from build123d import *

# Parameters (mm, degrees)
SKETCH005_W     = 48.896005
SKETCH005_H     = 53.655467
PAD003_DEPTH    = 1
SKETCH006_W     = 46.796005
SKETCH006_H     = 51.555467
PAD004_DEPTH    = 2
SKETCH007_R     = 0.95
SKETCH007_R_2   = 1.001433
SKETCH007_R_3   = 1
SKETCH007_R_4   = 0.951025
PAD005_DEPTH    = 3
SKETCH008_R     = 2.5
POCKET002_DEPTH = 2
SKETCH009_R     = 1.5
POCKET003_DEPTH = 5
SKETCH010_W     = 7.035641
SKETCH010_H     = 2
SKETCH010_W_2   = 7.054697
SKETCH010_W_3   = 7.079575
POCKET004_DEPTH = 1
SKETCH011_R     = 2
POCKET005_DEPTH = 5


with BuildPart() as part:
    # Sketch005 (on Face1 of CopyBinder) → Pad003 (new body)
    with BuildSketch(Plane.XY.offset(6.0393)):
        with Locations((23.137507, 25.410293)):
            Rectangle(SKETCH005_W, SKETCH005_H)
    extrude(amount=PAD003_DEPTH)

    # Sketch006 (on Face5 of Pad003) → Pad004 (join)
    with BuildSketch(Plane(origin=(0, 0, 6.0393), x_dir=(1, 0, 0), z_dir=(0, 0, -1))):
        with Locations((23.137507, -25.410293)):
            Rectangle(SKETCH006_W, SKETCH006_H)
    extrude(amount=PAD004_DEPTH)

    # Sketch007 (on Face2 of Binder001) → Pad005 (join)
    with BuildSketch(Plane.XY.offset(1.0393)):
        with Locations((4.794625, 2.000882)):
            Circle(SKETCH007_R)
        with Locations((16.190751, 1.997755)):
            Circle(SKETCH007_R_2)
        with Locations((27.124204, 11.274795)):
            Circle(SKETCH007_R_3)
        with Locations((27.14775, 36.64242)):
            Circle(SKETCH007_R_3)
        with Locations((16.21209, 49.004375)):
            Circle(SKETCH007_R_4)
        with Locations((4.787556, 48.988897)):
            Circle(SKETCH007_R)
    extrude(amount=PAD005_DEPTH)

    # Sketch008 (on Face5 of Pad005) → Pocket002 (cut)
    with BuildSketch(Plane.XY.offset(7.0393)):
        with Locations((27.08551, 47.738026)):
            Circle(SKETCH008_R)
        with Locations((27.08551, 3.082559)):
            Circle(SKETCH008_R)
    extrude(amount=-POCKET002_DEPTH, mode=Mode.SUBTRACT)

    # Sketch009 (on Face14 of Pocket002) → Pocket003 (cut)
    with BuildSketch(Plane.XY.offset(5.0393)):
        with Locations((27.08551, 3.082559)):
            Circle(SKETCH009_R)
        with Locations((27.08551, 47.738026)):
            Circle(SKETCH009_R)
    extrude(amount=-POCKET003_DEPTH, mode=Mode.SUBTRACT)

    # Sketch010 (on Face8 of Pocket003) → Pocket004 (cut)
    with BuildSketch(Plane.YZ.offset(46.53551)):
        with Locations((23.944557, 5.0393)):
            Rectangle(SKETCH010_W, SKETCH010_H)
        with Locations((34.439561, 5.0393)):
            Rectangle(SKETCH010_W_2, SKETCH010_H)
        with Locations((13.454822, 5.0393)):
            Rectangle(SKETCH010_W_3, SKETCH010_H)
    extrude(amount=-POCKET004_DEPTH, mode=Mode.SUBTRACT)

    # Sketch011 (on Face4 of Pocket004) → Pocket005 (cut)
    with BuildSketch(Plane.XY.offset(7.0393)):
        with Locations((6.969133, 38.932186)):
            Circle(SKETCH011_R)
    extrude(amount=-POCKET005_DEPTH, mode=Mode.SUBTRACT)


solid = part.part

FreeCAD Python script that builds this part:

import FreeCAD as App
import Part
import Sketcher

doc = App.newDocument("Part")
body = doc.addObject("PartDesign::Body", "Body")

sketch1 = doc.addObject("Sketcher::SketchObject", "Sketch")
body.addObject(sketch1)
sketch1.AttachmentSupport = (doc.XY_Plane, [""])
sketch1.MapMode = "FlatFace"
sketch1.AttachmentOffset = App.Placement(App.Vector(0, 0, 6.0393), App.Rotation())
sketch1.addGeometry([
    Part.LineSegment(App.Vector(-1, 52, 0), App.Vector(-1, -1, 0)),
    Part.LineSegment(App.Vector(-1, -1, 0), App.Vector(48, -1, 0)),
    Part.LineSegment(App.Vector(48, -1, 0), App.Vector(48, 52, 0)),
    Part.LineSegment(App.Vector(48, 52, 0), App.Vector(-1, 52, 0)),
], False)
sketch1.addConstraint([
    Sketcher.Constraint("Coincident", 0, 2, 1, 1),
    Sketcher.Constraint("Coincident", 1, 2, 2, 1),
    Sketcher.Constraint("Coincident", 2, 2, 3, 1),
    Sketcher.Constraint("Coincident", 3, 2, 0, 1),
    Sketcher.Constraint("Vertical", 0),
    Sketcher.Constraint("Horizontal", 1),
    Sketcher.Constraint("Vertical", 2),
    Sketcher.Constraint("Horizontal", 3),
    Sketcher.Constraint("DistanceX", 1, 1, 1, 2, 48.896005),
    Sketcher.Constraint("DistanceY", 0, 2, 0, 1, 53.655467),
    Sketcher.Constraint("DistanceY", 0, 2, -1, 1, 1.417441),
    Sketcher.Constraint("DistanceX", -1, 1, 1, 2, 47.58551),
])
pad1 = doc.addObject("PartDesign::Pad", "Pad")
body.addObject(pad1)
pad1.Profile = sketch1
pad1.Length = 1

sketch2 = doc.addObject("Sketcher::SketchObject", "Sketch001")
body.addObject(sketch2)
sketch2.AttachmentSupport = (doc.XY_Plane, [""])
sketch2.MapMode = "FlatFace"
sketch2.AttachmentOffset = App.Placement(App.Vector(0, 0, 6.0393), App.Rotation())
sketch2.addGeometry([
    Part.LineSegment(App.Vector(0, 0, 0), App.Vector(0, 51, 0)),
    Part.LineSegment(App.Vector(0, 51, 0), App.Vector(47, 51, 0)),
    Part.LineSegment(App.Vector(47, 51, 0), App.Vector(47, 0, 0)),
    Part.LineSegment(App.Vector(47, 0, 0), App.Vector(0, 0, 0)),
], False)
sketch2.addConstraint([
    Sketcher.Constraint("Coincident", 0, 2, 1, 1),
    Sketcher.Constraint("Coincident", 1, 2, 2, 1),
    Sketcher.Constraint("Coincident", 2, 2, 3, 1),
    Sketcher.Constraint("Coincident", 3, 2, 0, 1),
    Sketcher.Constraint("Vertical", 0),
    Sketcher.Constraint("Horizontal", 1),
    Sketcher.Constraint("Vertical", 2),
    Sketcher.Constraint("Horizontal", 3),
    Sketcher.Constraint("DistanceX", 1, 1, 1, 2, 46.796005),
    Sketcher.Constraint("DistanceY", 0, 1, 0, 2, 51.555467),
    Sketcher.Constraint("DistanceX", -1, 1, 1, 2, 46.53551),
    Sketcher.Constraint("DistanceY", 2, 2, -1, 1, 0.367441),
])
pad2 = doc.addObject("PartDesign::Pad", "Pad001")
body.addObject(pad2)
pad2.Profile = sketch2
pad2.Length = 2
pad2.Reversed = True

sketch3 = doc.addObject("Sketcher::SketchObject", "Sketch002")
body.addObject(sketch3)
sketch3.AttachmentSupport = (doc.XY_Plane, [""])
sketch3.MapMode = "FlatFace"
sketch3.AttachmentOffset = App.Placement(App.Vector(0, 0, 1.0393), App.Rotation())
sketch3.addGeometry([
    Part.Circle(App.Vector(4.8, 2, 0), App.Vector(0, 0, 1), 0.9),
    Part.Circle(App.Vector(16.2, 2, 0), App.Vector(0, 0, 1), 1),
    Part.Circle(App.Vector(27.1, 11.3, 0), App.Vector(0, 0, 1), 1),
    Part.Circle(App.Vector(27.1, 36.6, 0), App.Vector(0, 0, 1), 1),
    Part.Circle(App.Vector(16.2, 49, 0), App.Vector(0, 0, 1), 1),
    Part.Circle(App.Vector(4.8, 49, 0), App.Vector(0, 0, 1), 0.9),
], False)
sketch3.addConstraint([
    Sketcher.Constraint("Equal", 2, 3),
    Sketcher.Constraint("Equal", 0, 5),
    Sketcher.Constraint("Diameter", 2, 2.0),
    Sketcher.Constraint("Diameter", 0, 1.9),
    Sketcher.Constraint("Diameter", 4, 1.90205),
    Sketcher.Constraint("Diameter", 1, 2.002866),
    Sketcher.Constraint("DistanceX", 1, 3, 3, 3, 10.956999),
    Sketcher.Constraint("DistanceY", -1, 1, 0, 3, 2.000882),
    Sketcher.Constraint("DistanceX", -1, 1, 1, 3, 16.190751),
    Sketcher.Constraint("DistanceY", -1, 1, 3, 3, 36.64242),
    Sketcher.Constraint("DistanceX", -1, 1, 4, 3, 16.21209),
    Sketcher.Constraint("DistanceY", 1, 3, 2, 3, 9.27704),
    Sketcher.Constraint("DistanceX", 0, 3, 2, 3, 22.329579),
    Sketcher.Constraint("DistanceY", 2, 3, 4, 3, 37.72958),
    Sketcher.Constraint("DistanceY", 5, 3, 4, 3, 0.015478),
    Sketcher.Constraint("DistanceX", 5, 3, 0, 3, 0.007069),
    Sketcher.Constraint("DistanceX", -1, 1, 0, 3, 4.794625),
    Sketcher.Constraint("DistanceY", -1, 1, 1, 3, 1.997755),
])
pad3 = doc.addObject("PartDesign::Pad", "Pad002")
body.addObject(pad3)
pad3.Profile = sketch3
pad3.Length = 3

sketch4 = doc.addObject("Sketcher::SketchObject", "Sketch003")
body.addObject(sketch4)
sketch4.AttachmentSupport = (doc.XY_Plane, [""])
sketch4.MapMode = "FlatFace"
sketch4.AttachmentOffset = App.Placement(App.Vector(0, 0, 7.0393), App.Rotation())
sketch4.addGeometry([
    Part.Circle(App.Vector(27.1, 47.7, 0), App.Vector(0, 0, 1), 2.5),
    Part.Circle(App.Vector(27.1, 3.1, 0), App.Vector(0, 0, 1), 2.5),
], False)
sketch4.addConstraint([
    Sketcher.Constraint("Equal", 0, 1),
    Sketcher.Constraint("Vertical", 0, 3, 1, 3),
    Sketcher.Constraint("Diameter", 0, 5.0),
    Sketcher.Constraint("DistanceX", -1, 1, 0, 3, 27.08551),
    Sketcher.Constraint("DistanceY", -1, 1, 1, 3, 3.082559),
    Sketcher.Constraint("DistanceY", -1, 1, 0, 3, 47.738026),
])
pocket1 = doc.addObject("PartDesign::Pocket", "Pocket")
body.addObject(pocket1)
pocket1.Profile = sketch4
pocket1.Length = 2

sketch5 = doc.addObject("Sketcher::SketchObject", "Sketch004")
body.addObject(sketch5)
sketch5.AttachmentSupport = (doc.XY_Plane, [""])
sketch5.MapMode = "FlatFace"
sketch5.AttachmentOffset = App.Placement(App.Vector(0, 0, 5.0393), App.Rotation())
sketch5.addGeometry([
    Part.Circle(App.Vector(27.1, 3.1, 0), App.Vector(0, 0, 1), 1.5),
    Part.Circle(App.Vector(27.1, 47.7, 0), App.Vector(0, 0, 1), 1.5),
], False)
sketch5.addConstraint([
    Sketcher.Constraint("Equal", 0, 1),
    Sketcher.Constraint("Vertical", 0, 3, 1, 3),
    Sketcher.Constraint("Diameter", 0, 3.0),
    Sketcher.Constraint("DistanceX", -1, 1, 0, 3, 27.08551),
    Sketcher.Constraint("DistanceY", -1, 1, 0, 3, 3.082559),
    Sketcher.Constraint("DistanceY", -1, 1, 1, 3, 47.738026),
])
pocket2 = doc.addObject("PartDesign::Pocket", "Pocket001")
body.addObject(pocket2)
pocket2.Profile = sketch5
pocket2.Length = 5

sketch6 = doc.addObject("Sketcher::SketchObject", "Sketch005")
body.addObject(sketch6)
sketch6.AttachmentSupport = (doc.YZ_Plane, [""])
sketch6.MapMode = "FlatFace"
sketch6.AttachmentOffset = App.Placement(App.Vector(0, 0, 46.53551), App.Rotation())
sketch6.addGeometry([
    Part.LineSegment(App.Vector(20.4, 6, 0), App.Vector(20.4, 4, 0)),
    Part.LineSegment(App.Vector(20.4, 4, 0), App.Vector(27.5, 4, 0)),
    Part.LineSegment(App.Vector(27.5, 4, 0), App.Vector(27.5, 6, 0)),
    Part.LineSegment(App.Vector(27.5, 6, 0), App.Vector(20.4, 6, 0)),
    Part.LineSegment(App.Vector(30.9, 6, 0), App.Vector(30.9, 4, 0)),
    Part.LineSegment(App.Vector(30.9, 4, 0), App.Vector(38, 4, 0)),
    Part.LineSegment(App.Vector(38, 4, 0), App.Vector(38, 6, 0)),
    Part.LineSegment(App.Vector(38, 6, 0), App.Vector(30.9, 6, 0)),
    Part.LineSegment(App.Vector(9.9, 6, 0), App.Vector(9.9, 4, 0)),
    Part.LineSegment(App.Vector(9.9, 4, 0), App.Vector(17, 4, 0)),
    Part.LineSegment(App.Vector(17, 4, 0), App.Vector(17, 6, 0)),
    Part.LineSegment(App.Vector(17, 6, 0), App.Vector(9.9, 6, 0)),
], False)
sketch6.addConstraint([
    Sketcher.Constraint("Coincident", 0, 2, 1, 1),
    Sketcher.Constraint("Coincident", 1, 2, 2, 1),
    Sketcher.Constraint("Coincident", 2, 2, 3, 1),
    Sketcher.Constraint("Coincident", 3, 2, 0, 1),
    Sketcher.Constraint("Coincident", 4, 2, 5, 1),
    Sketcher.Constraint("Coincident", 5, 2, 6, 1),
    Sketcher.Constraint("Coincident", 6, 2, 7, 1),
    Sketcher.Constraint("Coincident", 7, 2, 4, 1),
    Sketcher.Constraint("Coincident", 8, 2, 9, 1),
    Sketcher.Constraint("Coincident", 9, 2, 10, 1),
    Sketcher.Constraint("Coincident", 10, 2, 11, 1),
    Sketcher.Constraint("Coincident", 11, 2, 8, 1),
    Sketcher.Constraint("Vertical", 0),
    Sketcher.Constraint("Horizontal", 1),
    Sketcher.Constraint("Vertical", 2),
    Sketcher.Constraint("Horizontal", 3),
    Sketcher.Constraint("Vertical", 4),
    Sketcher.Constraint("Horizontal", 5),
    Sketcher.Constraint("Vertical", 6),
    Sketcher.Constraint("Horizontal", 7),
    Sketcher.Constraint("Vertical", 8),
    Sketcher.Constraint("Horizontal", 9),
    Sketcher.Constraint("Vertical", 10),
    Sketcher.Constraint("Horizontal", 11),
    Sketcher.Constraint("Horizontal", 1, 2, 4, 2),
    Sketcher.Constraint("Horizontal", 3, 2, 6, 2),
    Sketcher.Constraint("Horizontal", 5, 2, 8, 2),
    Sketcher.Constraint("Horizontal", 7, 2, 10, 2),
    Sketcher.Constraint("DistanceY", 0, 2, 0, 1, 2.0),
    Sketcher.Constraint("DistanceX", 1, 1, 1, 2, 7.035641),
    Sketcher.Constraint("DistanceY", -1, 1, 0, 2, 4.0393),
    Sketcher.Constraint("DistanceX", 5, 1, 5, 2, 7.054697),
    Sketcher.Constraint("DistanceX", 9, 1, 9, 2, 7.079575),
    Sketcher.Constraint("DistanceX", -1, 1, 5, 2, 37.966909),
    Sketcher.Constraint("DistanceX", -1, 1, 9, 2, 16.994609),
    Sketcher.Constraint("DistanceX", -1, 1, 0, 2, 20.426737),
])
pocket3 = doc.addObject("PartDesign::Pocket", "Pocket002")
body.addObject(pocket3)
pocket3.Profile = sketch6
pocket3.Length = 1

sketch7 = doc.addObject("Sketcher::SketchObject", "Sketch006")
body.addObject(sketch7)
sketch7.AttachmentSupport = (doc.XY_Plane, [""])
sketch7.MapMode = "FlatFace"
sketch7.AttachmentOffset = App.Placement(App.Vector(0, 0, 7.0393), App.Rotation())
sketch7.addGeometry(Part.Circle(App.Vector(7, 38.9, 0), App.Vector(0, 0, 1), 2), False)
sketch7.addConstraint([
    Sketcher.Constraint("Diameter", 0, 4.0),
    Sketcher.Constraint("DistanceX", -1, 1, 0, 3, 6.969133),
    Sketcher.Constraint("DistanceY", -1, 1, 0, 3, 38.932186),
])
pocket4 = doc.addObject("PartDesign::Pocket", "Pocket003")
body.addObject(pocket4)
pocket4.Profile = sketch7
pocket4.Length = 5

doc.recompute()
